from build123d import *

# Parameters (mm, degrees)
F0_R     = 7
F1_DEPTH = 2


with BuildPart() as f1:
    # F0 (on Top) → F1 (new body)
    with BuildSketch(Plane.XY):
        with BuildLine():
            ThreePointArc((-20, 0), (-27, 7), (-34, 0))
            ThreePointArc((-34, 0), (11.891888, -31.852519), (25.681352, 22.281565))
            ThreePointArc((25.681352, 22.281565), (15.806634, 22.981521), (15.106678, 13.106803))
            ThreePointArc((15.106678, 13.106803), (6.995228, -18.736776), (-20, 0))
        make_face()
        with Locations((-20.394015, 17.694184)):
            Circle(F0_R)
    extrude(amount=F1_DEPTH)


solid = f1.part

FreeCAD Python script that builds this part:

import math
import FreeCAD as App
import Part
import Sketcher
from FreeCAD import Vector
Q = App.Units.Quantity

doc = App.newDocument("Part")
body = doc.addObject("PartDesign::Body", "Body")
body.AllowCompound = True

# Sketch on XY plane
sketch1 = body.newObject("Sketcher::SketchObject", "Sketch")
sketch1.AttachmentSupport = (doc.getObject("XY_Plane"), [""])
sketch1.MapMode = "FlatFace"
sketch1.addGeometry(Part.ArcOfCircle(Part.Circle(Vector(-27, 0, 0), Vector(0, 0, 1), 7), math.radians(0), math.radians(180)), False)
sketch1.addGeometry(Part.ArcOfCircle(Part.Circle(Vector(0, 0, 0), Vector(0, 0, 1), 34), math.radians(-180), math.radians(40.945447)), False)
sketch1.addGeometry(Part.ArcOfCircle(Part.Circle(Vector(20.394015, 17.694184, 0), Vector(0, 0, 1), 7), math.radians(40.945448), math.radians(220.945448)), False)
sketch1.addGeometry(Part.ArcOfCircle(Part.Circle(Vector(0, 0, 0), Vector(0, 0, 1), 20), math.radians(-179.999999), math.radians(40.945446)), False)
sketch1.addGeometry(Part.Circle(Vector(-20.394015, 17.694184, 0), Vector(0, 0, 1), 7), False)
sketch1.addConstraint(Sketcher.Constraint("Tangent", 0, 2, 1, 1))
sketch1.addConstraint(Sketcher.Constraint("Tangent", 1, 2, 2, 1))
sketch1.addConstraint(Sketcher.Constraint("Tangent", 2, 2, 3, 2))
sketch1.addConstraint(Sketcher.Constraint("Tangent", 3, 1, 0, 1))
sketch1.addConstraint(Sketcher.Constraint("Coincident", 1, 3, -1, 1))
sketch1.addConstraint(Sketcher.Constraint("Coincident", 3, 3, -1, 1))
sketch1.addConstraint(Sketcher.Constraint("Equal", 2, 4))
sketch1.addConstraint(Sketcher.Constraint("Symmetric", 2, 3, 4, 3, -2))
sketch1.addConstraint(Sketcher.Constraint("PointOnObject", 0, 3, -1))
sketch1.addConstraint(Sketcher.Constraint("Diameter", 4, Q("14 mm")))
sketch1.addConstraint(Sketcher.Constraint("Radius", 1, Q("34 mm")))
sketch1.addConstraint(Sketcher.Constraint("DistanceX", -1, 1, 1, 2, Q("25.681352 mm")))
pad1 = body.newObject("PartDesign::Pad", "Pad")
pad1.Profile = sketch1
pad1.Length = 2

doc.recompute()
